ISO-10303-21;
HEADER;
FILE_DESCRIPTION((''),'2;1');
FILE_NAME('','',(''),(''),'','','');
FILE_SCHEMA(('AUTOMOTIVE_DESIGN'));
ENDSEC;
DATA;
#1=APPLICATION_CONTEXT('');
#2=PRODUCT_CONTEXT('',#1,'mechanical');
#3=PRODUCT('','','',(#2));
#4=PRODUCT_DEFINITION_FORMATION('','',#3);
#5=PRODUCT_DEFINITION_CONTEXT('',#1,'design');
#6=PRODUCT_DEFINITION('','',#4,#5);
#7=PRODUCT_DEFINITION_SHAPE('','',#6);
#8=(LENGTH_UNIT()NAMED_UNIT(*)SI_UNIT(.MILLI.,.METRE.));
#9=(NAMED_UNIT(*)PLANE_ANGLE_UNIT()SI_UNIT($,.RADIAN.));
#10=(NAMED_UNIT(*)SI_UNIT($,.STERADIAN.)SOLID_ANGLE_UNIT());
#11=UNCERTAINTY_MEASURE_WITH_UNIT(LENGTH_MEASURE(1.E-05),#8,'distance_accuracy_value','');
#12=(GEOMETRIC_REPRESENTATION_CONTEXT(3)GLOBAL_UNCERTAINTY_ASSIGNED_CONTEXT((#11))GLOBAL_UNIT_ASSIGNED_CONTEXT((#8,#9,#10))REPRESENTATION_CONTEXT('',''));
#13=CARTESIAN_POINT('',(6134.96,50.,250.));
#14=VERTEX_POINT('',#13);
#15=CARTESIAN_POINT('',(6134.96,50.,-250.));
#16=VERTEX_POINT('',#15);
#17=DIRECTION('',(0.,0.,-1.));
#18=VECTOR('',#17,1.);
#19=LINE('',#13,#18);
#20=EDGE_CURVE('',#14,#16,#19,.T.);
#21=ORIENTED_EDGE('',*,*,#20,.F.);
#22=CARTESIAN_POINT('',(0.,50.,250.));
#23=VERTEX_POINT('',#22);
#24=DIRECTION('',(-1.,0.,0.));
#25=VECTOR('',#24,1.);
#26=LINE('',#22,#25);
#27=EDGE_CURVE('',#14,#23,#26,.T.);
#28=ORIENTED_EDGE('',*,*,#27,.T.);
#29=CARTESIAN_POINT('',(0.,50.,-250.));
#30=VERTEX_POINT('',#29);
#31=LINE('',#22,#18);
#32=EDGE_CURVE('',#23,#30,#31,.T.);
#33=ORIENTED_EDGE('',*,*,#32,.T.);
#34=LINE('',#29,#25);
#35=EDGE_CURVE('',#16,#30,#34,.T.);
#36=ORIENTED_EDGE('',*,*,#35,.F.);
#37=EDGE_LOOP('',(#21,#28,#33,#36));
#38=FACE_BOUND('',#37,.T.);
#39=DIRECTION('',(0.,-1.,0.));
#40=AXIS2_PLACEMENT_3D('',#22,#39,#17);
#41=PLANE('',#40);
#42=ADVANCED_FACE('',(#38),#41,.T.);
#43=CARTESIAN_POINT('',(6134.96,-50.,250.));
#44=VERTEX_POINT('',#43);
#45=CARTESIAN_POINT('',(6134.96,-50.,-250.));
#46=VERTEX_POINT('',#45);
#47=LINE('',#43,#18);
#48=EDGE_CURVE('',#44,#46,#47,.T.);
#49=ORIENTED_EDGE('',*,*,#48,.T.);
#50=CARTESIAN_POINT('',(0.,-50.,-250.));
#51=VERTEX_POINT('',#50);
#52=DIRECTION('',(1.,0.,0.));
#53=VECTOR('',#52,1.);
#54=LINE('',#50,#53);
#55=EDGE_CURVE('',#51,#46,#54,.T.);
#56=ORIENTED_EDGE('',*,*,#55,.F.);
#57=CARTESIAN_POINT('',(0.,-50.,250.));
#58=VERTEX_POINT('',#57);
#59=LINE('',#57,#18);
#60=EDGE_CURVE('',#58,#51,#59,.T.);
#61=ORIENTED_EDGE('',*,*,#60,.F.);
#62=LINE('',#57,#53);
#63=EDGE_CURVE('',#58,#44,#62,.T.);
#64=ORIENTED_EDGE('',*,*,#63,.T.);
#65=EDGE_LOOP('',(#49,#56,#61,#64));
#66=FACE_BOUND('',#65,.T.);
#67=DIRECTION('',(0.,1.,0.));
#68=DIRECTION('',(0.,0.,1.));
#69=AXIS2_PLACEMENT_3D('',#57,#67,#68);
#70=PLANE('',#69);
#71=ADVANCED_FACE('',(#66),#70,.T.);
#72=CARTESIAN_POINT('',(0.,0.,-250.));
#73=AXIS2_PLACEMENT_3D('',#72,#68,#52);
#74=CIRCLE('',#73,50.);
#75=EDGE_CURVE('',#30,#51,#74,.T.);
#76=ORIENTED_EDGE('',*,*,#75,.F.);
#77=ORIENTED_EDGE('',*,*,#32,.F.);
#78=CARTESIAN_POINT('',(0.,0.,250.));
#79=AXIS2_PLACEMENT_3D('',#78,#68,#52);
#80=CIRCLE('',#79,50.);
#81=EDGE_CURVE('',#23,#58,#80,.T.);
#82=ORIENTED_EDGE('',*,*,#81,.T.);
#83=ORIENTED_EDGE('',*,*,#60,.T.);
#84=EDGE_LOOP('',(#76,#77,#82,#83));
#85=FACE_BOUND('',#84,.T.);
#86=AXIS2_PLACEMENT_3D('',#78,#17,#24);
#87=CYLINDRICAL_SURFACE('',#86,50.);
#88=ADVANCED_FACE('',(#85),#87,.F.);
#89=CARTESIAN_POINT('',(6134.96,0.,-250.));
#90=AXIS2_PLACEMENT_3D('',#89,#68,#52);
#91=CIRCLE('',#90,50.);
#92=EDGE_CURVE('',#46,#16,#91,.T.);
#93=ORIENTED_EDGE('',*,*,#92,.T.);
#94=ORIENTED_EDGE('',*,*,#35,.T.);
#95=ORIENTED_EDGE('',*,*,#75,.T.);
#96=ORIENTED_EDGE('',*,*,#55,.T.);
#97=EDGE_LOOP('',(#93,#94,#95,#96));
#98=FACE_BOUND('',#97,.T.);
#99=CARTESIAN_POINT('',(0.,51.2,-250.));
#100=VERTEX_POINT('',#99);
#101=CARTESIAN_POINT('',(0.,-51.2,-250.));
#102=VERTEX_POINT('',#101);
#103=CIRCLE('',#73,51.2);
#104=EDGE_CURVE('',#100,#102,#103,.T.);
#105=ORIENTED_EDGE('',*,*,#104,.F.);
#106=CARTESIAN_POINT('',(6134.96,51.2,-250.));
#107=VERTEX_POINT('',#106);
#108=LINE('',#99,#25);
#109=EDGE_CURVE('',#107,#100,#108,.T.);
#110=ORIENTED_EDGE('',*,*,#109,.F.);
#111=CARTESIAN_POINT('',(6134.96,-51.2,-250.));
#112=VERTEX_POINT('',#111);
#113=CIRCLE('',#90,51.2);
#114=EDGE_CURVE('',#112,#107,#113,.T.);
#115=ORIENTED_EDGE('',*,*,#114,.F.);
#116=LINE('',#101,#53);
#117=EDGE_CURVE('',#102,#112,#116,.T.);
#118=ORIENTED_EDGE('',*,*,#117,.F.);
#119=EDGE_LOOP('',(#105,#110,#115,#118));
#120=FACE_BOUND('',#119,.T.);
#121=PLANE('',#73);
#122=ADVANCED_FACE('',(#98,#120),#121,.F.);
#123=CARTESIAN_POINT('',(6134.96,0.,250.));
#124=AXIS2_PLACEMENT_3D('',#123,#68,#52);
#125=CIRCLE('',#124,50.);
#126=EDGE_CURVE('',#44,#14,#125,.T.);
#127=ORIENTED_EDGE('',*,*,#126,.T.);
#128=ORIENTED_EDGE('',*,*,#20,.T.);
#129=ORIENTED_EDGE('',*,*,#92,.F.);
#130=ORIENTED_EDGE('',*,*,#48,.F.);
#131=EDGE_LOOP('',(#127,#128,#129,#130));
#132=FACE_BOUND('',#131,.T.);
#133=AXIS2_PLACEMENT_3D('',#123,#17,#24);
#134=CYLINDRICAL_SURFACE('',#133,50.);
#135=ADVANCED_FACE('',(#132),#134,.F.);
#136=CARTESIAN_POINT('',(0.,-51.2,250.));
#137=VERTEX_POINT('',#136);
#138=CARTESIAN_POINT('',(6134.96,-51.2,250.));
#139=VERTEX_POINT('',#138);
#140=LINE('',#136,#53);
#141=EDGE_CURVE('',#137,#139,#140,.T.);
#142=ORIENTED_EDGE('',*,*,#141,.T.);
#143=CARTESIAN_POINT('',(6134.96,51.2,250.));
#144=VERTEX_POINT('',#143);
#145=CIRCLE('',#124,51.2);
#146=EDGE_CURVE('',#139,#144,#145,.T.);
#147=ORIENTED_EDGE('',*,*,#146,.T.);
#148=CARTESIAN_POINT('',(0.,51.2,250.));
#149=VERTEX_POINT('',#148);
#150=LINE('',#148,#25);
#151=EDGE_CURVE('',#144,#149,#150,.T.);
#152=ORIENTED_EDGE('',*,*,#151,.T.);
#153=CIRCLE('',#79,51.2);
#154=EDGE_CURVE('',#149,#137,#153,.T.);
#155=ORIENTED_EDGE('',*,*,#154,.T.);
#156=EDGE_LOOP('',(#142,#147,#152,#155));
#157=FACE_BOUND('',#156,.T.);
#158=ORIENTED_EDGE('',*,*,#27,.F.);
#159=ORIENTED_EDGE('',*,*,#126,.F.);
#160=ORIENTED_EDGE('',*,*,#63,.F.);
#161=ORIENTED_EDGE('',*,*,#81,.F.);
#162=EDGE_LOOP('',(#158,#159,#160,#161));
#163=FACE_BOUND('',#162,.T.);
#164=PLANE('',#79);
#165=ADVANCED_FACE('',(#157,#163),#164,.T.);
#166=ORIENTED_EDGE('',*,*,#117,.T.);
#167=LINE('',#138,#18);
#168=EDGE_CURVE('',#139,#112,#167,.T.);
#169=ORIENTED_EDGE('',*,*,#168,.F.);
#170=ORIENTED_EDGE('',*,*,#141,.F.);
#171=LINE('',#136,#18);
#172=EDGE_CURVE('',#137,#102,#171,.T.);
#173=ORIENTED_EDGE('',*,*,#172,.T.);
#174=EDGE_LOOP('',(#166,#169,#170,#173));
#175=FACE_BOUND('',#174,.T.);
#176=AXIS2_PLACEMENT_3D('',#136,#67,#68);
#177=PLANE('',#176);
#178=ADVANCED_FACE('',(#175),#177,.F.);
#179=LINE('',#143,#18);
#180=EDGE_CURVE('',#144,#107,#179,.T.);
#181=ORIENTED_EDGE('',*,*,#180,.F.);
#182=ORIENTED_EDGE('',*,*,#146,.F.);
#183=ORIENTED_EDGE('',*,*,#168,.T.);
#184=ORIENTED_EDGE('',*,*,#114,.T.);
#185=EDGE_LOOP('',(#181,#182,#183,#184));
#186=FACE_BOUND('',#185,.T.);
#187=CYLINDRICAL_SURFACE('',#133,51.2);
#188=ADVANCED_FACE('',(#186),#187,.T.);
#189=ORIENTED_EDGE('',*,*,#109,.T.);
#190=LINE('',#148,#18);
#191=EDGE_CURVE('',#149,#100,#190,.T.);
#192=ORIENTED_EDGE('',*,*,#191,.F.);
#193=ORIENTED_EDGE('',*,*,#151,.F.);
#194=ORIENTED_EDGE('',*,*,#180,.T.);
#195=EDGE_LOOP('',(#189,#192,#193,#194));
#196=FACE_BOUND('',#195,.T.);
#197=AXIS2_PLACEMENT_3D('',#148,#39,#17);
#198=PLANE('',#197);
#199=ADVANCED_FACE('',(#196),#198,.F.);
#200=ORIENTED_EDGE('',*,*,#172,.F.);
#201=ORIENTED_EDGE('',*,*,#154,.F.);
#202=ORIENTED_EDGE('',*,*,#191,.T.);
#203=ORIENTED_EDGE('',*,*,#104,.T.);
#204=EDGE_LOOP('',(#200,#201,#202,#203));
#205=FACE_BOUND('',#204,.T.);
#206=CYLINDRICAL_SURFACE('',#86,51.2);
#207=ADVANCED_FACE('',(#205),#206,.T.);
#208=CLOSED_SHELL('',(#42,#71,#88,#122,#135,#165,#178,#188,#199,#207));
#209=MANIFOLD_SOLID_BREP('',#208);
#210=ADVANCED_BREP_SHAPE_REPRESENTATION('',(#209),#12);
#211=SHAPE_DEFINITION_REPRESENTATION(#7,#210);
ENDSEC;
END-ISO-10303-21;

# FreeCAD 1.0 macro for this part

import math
import FreeCAD as App
import Part
import Sketcher
from FreeCAD import Vector

doc = App.newDocument("Part")
body = doc.addObject("PartDesign::Body", "Body")

# Sketch on XY plane
sketch1 = body.newObject("Sketcher::SketchObject", "Sketch")
sketch1.AttachmentSupport = (doc.getObject("XY_Plane"), [""])
sketch1.MapMode = "FlatFace"
sketch1.addGeometry([
    Part.LineSegment(Vector(0, -51.2, 0), Vector(6134.96, -51.2, 0)),  # 0
    Part.ArcOfCircle(Part.Circle(Vector(6134.96, 0, 0), Vector(0, 0, 1), 51.2), math.radians(-90), math.radians(90)),  # 1
    Part.LineSegment(Vector(6134.96, 51.2, 0), Vector(0, 51.2, 0)),  # 2
    Part.ArcOfCircle(Part.Circle(Vector(0, 0, 0), Vector(0, 0, 1), 51.2), math.radians(90), math.radians(270)),  # 3
    Part.ArcOfCircle(Part.Circle(Vector(0, 0, 0), Vector(0, 0, 1), 50), math.radians(90), math.radians(270)),  # 4
    Part.LineSegment(Vector(0, 50, 0), Vector(6134.96, 50, 0)),  # 5
    Part.ArcOfCircle(Part.Circle(Vector(6134.96, 0, 0), Vector(0, 0, 1), 50), math.radians(-90), math.radians(90)),  # 6
    Part.LineSegment(Vector(6134.96, -50, 0), Vector(0, -50, 0)),  # 7
], False)
sketch1.addConstraint([
    Sketcher.Constraint("Tangent", 0, 2, 1, 1),
    Sketcher.Constraint("Tangent", 1, 2, 2, 1),
    Sketcher.Constraint("Tangent", 2, 2, 3, 1),
    Sketcher.Constraint("Tangent", 3, 2, 0, 1),
    Sketcher.Constraint("Tangent", 4, 1, 5, 1),
    Sketcher.Constraint("Tangent", 5, 2, 6, 2),
    Sketcher.Constraint("Tangent", 6, 1, 7, 1),
    Sketcher.Constraint("Tangent", 7, 2, 4, 2),
    Sketcher.Constraint("Horizontal", 0),
    Sketcher.Constraint("Horizontal", 2),
    Sketcher.Constraint("Horizontal", 5),
    Sketcher.Constraint("Horizontal", 7),
    Sketcher.Constraint("Coincident", 3, 3, -1, 1),
    Sketcher.Constraint("Coincident", 4, 3, -1, 1),
    Sketcher.Constraint("Vertical", 6, 3, 0, 2),
    Sketcher.Constraint("Radius", 4, 50.0),
    Sketcher.Constraint("Radius", 1, 51.2),
    Sketcher.Constraint("DistanceX", 0, 1, 0, 2, 6134.96),
])
pad1 = body.newObject("PartDesign::Pad", "Pad")
pad1.Profile = sketch1
pad1.Length = 500
pad1.Midplane = True

doc.recompute()
